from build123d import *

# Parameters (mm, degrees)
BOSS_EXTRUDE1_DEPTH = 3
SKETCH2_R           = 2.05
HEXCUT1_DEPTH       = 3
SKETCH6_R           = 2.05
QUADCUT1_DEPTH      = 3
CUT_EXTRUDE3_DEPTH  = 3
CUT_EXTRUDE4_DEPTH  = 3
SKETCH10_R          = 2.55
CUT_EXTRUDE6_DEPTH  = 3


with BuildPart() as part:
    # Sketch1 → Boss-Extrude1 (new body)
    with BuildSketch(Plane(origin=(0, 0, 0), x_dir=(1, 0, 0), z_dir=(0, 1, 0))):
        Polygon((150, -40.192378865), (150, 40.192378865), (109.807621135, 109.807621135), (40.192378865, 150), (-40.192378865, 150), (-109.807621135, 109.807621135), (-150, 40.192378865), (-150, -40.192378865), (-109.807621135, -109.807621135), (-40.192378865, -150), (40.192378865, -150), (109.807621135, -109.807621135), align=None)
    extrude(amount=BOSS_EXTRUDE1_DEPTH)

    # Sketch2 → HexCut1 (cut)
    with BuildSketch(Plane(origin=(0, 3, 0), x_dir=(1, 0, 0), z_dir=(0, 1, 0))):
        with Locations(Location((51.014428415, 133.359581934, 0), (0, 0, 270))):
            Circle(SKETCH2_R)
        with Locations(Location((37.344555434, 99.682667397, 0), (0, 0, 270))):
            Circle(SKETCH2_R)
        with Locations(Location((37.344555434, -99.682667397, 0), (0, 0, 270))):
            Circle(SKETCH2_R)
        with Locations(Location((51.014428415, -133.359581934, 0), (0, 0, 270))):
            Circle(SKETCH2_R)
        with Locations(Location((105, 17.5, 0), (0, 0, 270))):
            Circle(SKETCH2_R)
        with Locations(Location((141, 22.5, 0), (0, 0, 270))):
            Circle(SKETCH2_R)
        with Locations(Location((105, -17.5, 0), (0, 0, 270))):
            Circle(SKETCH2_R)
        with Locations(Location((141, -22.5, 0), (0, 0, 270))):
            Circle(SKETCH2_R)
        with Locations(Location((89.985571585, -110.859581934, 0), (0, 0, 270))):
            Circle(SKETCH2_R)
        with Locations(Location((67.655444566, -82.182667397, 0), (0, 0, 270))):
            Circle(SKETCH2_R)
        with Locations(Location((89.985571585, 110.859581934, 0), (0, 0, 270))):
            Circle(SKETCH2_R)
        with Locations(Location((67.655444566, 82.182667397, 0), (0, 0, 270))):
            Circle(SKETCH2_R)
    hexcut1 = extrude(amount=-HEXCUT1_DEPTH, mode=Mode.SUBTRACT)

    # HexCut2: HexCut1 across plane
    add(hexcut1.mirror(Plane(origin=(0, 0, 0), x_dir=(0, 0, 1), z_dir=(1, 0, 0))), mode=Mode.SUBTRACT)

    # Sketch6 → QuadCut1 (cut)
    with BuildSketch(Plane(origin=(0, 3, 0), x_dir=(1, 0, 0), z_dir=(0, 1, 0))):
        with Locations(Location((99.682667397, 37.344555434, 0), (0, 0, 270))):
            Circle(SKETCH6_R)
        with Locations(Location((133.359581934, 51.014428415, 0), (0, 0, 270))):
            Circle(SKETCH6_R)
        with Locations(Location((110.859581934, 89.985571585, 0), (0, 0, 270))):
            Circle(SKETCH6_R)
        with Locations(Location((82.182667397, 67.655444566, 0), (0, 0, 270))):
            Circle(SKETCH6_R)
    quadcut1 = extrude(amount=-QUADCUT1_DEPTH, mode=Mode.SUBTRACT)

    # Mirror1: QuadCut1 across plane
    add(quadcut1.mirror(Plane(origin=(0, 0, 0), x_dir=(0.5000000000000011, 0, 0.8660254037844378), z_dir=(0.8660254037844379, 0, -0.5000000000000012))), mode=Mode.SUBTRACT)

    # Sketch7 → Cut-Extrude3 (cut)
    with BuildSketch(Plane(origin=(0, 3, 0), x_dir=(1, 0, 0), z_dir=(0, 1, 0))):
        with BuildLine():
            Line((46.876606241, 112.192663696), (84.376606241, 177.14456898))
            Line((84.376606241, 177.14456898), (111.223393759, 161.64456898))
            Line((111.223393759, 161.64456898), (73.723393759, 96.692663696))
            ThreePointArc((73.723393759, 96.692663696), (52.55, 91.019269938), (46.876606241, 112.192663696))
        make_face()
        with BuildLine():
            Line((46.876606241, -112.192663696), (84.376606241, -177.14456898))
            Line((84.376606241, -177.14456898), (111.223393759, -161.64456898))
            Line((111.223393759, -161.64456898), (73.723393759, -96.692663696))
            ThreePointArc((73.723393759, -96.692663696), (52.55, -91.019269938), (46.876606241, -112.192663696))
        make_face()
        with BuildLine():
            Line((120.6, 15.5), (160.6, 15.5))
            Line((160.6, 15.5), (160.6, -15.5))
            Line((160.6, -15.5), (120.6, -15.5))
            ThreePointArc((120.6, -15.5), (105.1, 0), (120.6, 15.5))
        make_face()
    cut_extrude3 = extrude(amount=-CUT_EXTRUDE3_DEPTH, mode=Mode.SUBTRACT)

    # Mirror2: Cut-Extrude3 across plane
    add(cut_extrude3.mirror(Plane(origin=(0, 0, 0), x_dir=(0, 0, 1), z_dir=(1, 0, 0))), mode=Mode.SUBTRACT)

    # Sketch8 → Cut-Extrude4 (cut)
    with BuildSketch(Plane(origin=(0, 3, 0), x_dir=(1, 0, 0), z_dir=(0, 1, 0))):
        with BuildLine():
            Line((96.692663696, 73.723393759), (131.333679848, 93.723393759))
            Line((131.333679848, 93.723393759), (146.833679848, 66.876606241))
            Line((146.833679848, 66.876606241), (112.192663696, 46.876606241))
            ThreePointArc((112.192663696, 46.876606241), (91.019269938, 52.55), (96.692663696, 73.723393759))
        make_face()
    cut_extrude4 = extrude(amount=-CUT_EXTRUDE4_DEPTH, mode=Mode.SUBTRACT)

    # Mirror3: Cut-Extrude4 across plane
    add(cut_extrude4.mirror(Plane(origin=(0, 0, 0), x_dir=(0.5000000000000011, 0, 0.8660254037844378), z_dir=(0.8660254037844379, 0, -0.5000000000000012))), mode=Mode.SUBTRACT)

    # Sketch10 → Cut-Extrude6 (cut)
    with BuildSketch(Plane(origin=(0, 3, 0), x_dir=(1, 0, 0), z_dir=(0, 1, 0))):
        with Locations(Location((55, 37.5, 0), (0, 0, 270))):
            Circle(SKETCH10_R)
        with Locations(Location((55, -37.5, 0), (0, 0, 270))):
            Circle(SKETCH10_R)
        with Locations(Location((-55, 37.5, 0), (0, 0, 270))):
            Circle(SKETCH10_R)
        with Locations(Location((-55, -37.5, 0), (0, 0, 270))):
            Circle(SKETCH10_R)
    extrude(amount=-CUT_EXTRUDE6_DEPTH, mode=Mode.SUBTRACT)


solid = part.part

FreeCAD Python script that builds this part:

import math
import FreeCAD as App
import Part
import Sketcher
Q = App.Units.Quantity


def add_polygon(sketch, points):
    """Adds a closed chain of lines whose ends are joined by coincident constraints."""
    first, n = sketch.GeometryCount, len(points)
    for a, b in zip(points, points[1:] + points[:1]):
        sketch.addGeometry(Part.LineSegment(App.Vector(*a, 0), App.Vector(*b, 0)), False)
    for i in range(n):
        sketch.addConstraint(Sketcher.Constraint("Coincident", first + i, 2, first + (i + 1) % n, 1))

doc = App.newDocument("Part")
body = doc.addObject("PartDesign::Body", "Body")

# Sketch on XZ plane
sketch1 = doc.addObject("Sketcher::SketchObject", "Sketch")
body.addObject(sketch1)
sketch1.AttachmentSupport = (doc.XZ_Plane, [""])
sketch1.MapMode = "FlatFace"
add_polygon(sketch1, [(150, 40), (150, -40), (110, -110), (40, -150), (-40, -150), (-110, -110), (-150, -40), (-150, 40), (-110, 110), (-40, 150), (40, 150), (110, 110)])  # lines 0-11
sketch1.addConstraint([
    Sketcher.Constraint("Vertical", 0),
    Sketcher.Constraint("Horizontal", 3),
    Sketcher.Constraint("Vertical", 6),
    Sketcher.Constraint("Horizontal", 9),
    Sketcher.Constraint("Symmetric", 0, 2, 6, 2, -1, 1),
    Sketcher.Constraint("Symmetric", 1, 2, 7, 2, -1, 1),
    Sketcher.Constraint("Symmetric", 2, 2, 8, 2, -1, 1),
    Sketcher.Constraint("Symmetric", 4, 2, 10, 2, -1, 1),
    Sketcher.Constraint("Symmetric", 1, 2, 4, 2, -2),
    Sketcher.Constraint("Perpendicular", 1, 4),
    Sketcher.Constraint("Perpendicular", 2, 5),
    Sketcher.Constraint("Perpendicular", 7, 10),
    Sketcher.Constraint("Perpendicular", 8, 11),
    Sketcher.Constraint("Horizontal", 0, 2, 5, 2),
    Sketcher.Constraint("Equal", 9, 0),
    Sketcher.Constraint("Equal", 1, 2),
    Sketcher.Constraint("Angle", 1, Q("-120 deg")),
    Sketcher.Constraint("DistanceX", -1, 1, 0, 2, Q("150 mm")),
    Sketcher.Constraint("DistanceX", 3, 2, 1, 2, Q("150 mm")),
])
pad1 = doc.addObject("PartDesign::Pad", "Pad")
body.addObject(pad1)
pad1.Profile = sketch1
pad1.Length = 3
pad1.Reversed = True

# Sketch on XZ plane
sketch2 = doc.addObject("Sketcher::SketchObject", "Sketch001")
body.addObject(sketch2)
sketch2.AttachmentSupport = (doc.XZ_Plane, [""])
sketch2.MapMode = "FlatFace"
sketch2.AttachmentOffset = App.Placement(App.Vector(0, 0, -3), App.Rotation())
sketch2.addGeometry([
    Part.Circle(App.Vector(51, -133.4, 0), App.Vector(0, 0, 1), 2),  # 0
    Part.Circle(App.Vector(37.3, -99.7, 0), App.Vector(0, 0, 1), 2),  # 1
    Part.Circle(App.Vector(37.3, 99.7, 0), App.Vector(0, 0, 1), 2),  # 2
    Part.Circle(App.Vector(51, 133.4, 0), App.Vector(0, 0, 1), 2),  # 3
    Part.Circle(App.Vector(105, -17.5, 0), App.Vector(0, 0, 1), 2),  # 4
    Part.Circle(App.Vector(141, -22.5, 0), App.Vector(0, 0, 1), 2),  # 5
    Part.Circle(App.Vector(105, 17.5, 0), App.Vector(0, 0, 1), 2),  # 6
    Part.Circle(App.Vector(141, 22.5, 0), App.Vector(0, 0, 1), 2),  # 7
    Part.Circle(App.Vector(90, 110.9, 0), App.Vector(0, 0, 1), 2),  # 8
    Part.Circle(App.Vector(67.7, 82.2, 0), App.Vector(0, 0, 1), 2),  # 9
    Part.Circle(App.Vector(90, -110.9, 0), App.Vector(0, 0, 1), 2),  # 10
    Part.Circle(App.Vector(67.7, -82.2, 0), App.Vector(0, 0, 1), 2),  # 11
], False)
sketch2.addConstraint([
    Sketcher.Constraint("Equal", 0, 1),
    Sketcher.Constraint("Equal", 1, 2),
    Sketcher.Constraint("Equal", 2, 3),
    Sketcher.Constraint("Equal", 3, 4),
    Sketcher.Constraint("Equal", 4, 5),
    Sketcher.Constraint("Equal", 5, 6),
    Sketcher.Constraint("Equal", 6, 7),
    Sketcher.Constraint("Equal", 7, 8),
    Sketcher.Constraint("Equal", 8, 9),
    Sketcher.Constraint("Equal", 9, 10),
    Sketcher.Constraint("Equal", 10, 11),
    Sketcher.Constraint("Symmetric", 1, 3, 2, 3, -1),
    Sketcher.Constraint("Symmetric", 0, 3, 3, 3, -1),
    Sketcher.Constraint("Symmetric", 4, 3, 6, 3, -1),
    Sketcher.Constraint("Symmetric", 5, 3, 7, 3, -1),
    Sketcher.Constraint("Symmetric", 8, 3, 10, 3, -1),
    Sketcher.Constraint("Symmetric", 9, 3, 11, 3, -1),
    Sketcher.Constraint("Diameter", 0, Q("4.1 mm")),
    Sketcher.Constraint("DistanceX", -1, 1, 4, 3, Q("105 mm")),
    Sketcher.Constraint("DistanceX", -1, 1, 5, 3, Q("141 mm")),
    Sketcher.Constraint("DistanceY", 5, 3, 4, 3, Q("5 mm")),
    Sketcher.Constraint("DistanceY", 4, 3, 6, 3, Q("35 mm")),
    Sketcher.Constraint("DistanceY", 8, 3, 3, 3, Q("22.5 mm")),
    Sketcher.Constraint("DistanceY", 9, 3, 2, 3, Q("17.5 mm")),
    Sketcher.Constraint("DistanceX", -1, 1, 0, 3, Q("51.014428 mm")),
    Sketcher.Constraint("DistanceY", 0, 3, -1, 1, Q("133.359582 mm")),
    Sketcher.Constraint("DistanceX", -1, 1, 8, 3, Q("89.985572 mm")),
    Sketcher.Constraint("DistanceY", 0, 3, 2, 3, Q("233.042249 mm")),
    Sketcher.Constraint("DistanceX", 2, 3, 9, 3, Q("30.310889 mm")),
    Sketcher.Constraint("DistanceX", -1, 1, 1, 3, Q("37.344555 mm")),
])
pocket1 = doc.addObject("PartDesign::Pocket", "Pocket")
body.addObject(pocket1)
pocket1.Profile = sketch2
pocket1.Length = 3
pocket1.Reversed = True
doc.recompute()

mirrored = doc.addObject("PartDesign::Mirrored", "Mirrored")
body.addObject(mirrored)
mirrored.Originals = [pocket1]
mirrored.MirrorPlane = (doc.YZ_Plane, [""])
body.Tip = mirrored

# Sketch on XZ plane
sketch3 = doc.addObject("Sketcher::SketchObject", "Sketch002")
body.addObject(sketch3)
sketch3.AttachmentSupport = (doc.XZ_Plane, [""])
sketch3.MapMode = "FlatFace"
sketch3.AttachmentOffset = App.Placement(App.Vector(0, 0, -3), App.Rotation())
sketch3.addGeometry([
    Part.Circle(App.Vector(99.7, -37.3, 0), App.Vector(0, 0, 1), 2),
    Part.Circle(App.Vector(133.4, -51, 0), App.Vector(0, 0, 1), 2),
    Part.Circle(App.Vector(110.9, -90, 0), App.Vector(0, 0, 1), 2),
    Part.Circle(App.Vector(82.2, -67.7, 0), App.Vector(0, 0, 1), 2),
], False)
sketch3.addConstraint([
    Sketcher.Constraint("Equal", 0, 1),
    Sketcher.Constraint("Equal", 1, 2),
    Sketcher.Constraint("Equal", 2, 3),
    Sketcher.Constraint("Diameter", 0, Q("4.1 mm")),
    Sketcher.Constraint("DistanceX", 2, 3, 1, 3, Q("22.5 mm")),
    Sketcher.Constraint("DistanceX", 3, 3, 0, 3, Q("17.5 mm")),
    Sketcher.Constraint("DistanceX", -1, 1, 1, 3, Q("133.359582 mm")),
    Sketcher.Constraint("DistanceY", 1, 3, -1, 1, Q("51.014428 mm")),
    Sketcher.Constraint("DistanceY", 2, 3, -1, 1, Q("89.985572 mm")),
    Sketcher.Constraint("DistanceY", 3, 3, 0, 3, Q("30.310889 mm")),
    Sketcher.Constraint("DistanceX", -1, 1, 0, 3, Q("99.682667 mm")),
    Sketcher.Constraint("DistanceY", 0, 3, -1, 1, Q("37.344555 mm")),
])
pocket2 = doc.addObject("PartDesign::Pocket", "Pocket001")
body.addObject(pocket2)
pocket2.Profile = sketch3
pocket2.Length = 3
pocket2.Reversed = True
doc.recompute()

datumplane = doc.addObject("PartDesign::Plane", "DatumPlane")
body.addObject(datumplane)
datumplane.Placement = App.Placement(App.Vector(0, 0, 0), App.Rotation(App.Vector(0.5, 0, 0.866025404), App.Vector(0, -1, 0), App.Vector(0.866025404, 0, -0.5), "ZXY"))
mirrored2 = doc.addObject("PartDesign::Mirrored", "Mirrored001")
body.addObject(mirrored2)
mirrored2.Originals = [pocket2]
mirrored2.MirrorPlane = (datumplane, [""])
body.Tip = mirrored2

# Sketch on XZ plane
sketch4 = doc.addObject("Sketcher::SketchObject", "Sketch003")
body.addObject(sketch4)
sketch4.AttachmentSupport = (doc.XZ_Plane, [""])
sketch4.MapMode = "FlatFace"
sketch4.AttachmentOffset = App.Placement(App.Vector(0, 0, -3), App.Rotation())
sketch4.addGeometry([
    Part.LineSegment(App.Vector(84, -177, 0), App.Vector(47, -112, 0)),  # 0
    Part.ArcOfCircle(Part.Circle(App.Vector(60, -104, 0), App.Vector(0, 0, 1), 16), math.radians(30), math.radians(210)),  # 1
    Part.LineSegment(App.Vector(74, -97, 0), App.Vector(111, -162, 0)),  # 2
    Part.LineSegment(App.Vector(111, -162, 0), App.Vector(84, -177, 0)),  # 3
    Part.LineSegment(App.Vector(47, 112, 0), App.Vector(84, 177, 0)),  # 4
    Part.LineSegment(App.Vector(84, 177, 0), App.Vector(111, 162, 0)),  # 5
    Part.LineSegment(App.Vector(111, 162, 0), App.Vector(74, 97, 0)),  # 6
    Part.ArcOfCircle(Part.Circle(App.Vector(60, 104, 0), App.Vector(0, 0, 1), 16), math.radians(150), math.radians(330)),  # 7
    Part.LineSegment(App.Vector(161, -16, 0), App.Vector(121, -16, 0)),  # 8
    Part.ArcOfCircle(Part.Circle(App.Vector(121, 0, 0), App.Vector(0, 0, 1), 16), math.radians(90), math.radians(270)),  # 9
    Part.LineSegment(App.Vector(121, 16, 0), App.Vector(161, 16, 0)),  # 10
    Part.LineSegment(App.Vector(161, 16, 0), App.Vector(161, -16, 0)),  # 11
], False)
sketch4.addConstraint([
    Sketcher.Constraint("Tangent", 0, 2, 1, 2),
    Sketcher.Constraint("Tangent", 1, 1, 2, 1),
    Sketcher.Constraint("Coincident", 2, 2, 3, 1),
    Sketcher.Constraint("Coincident", 3, 2, 0, 1),
    Sketcher.Constraint("Coincident", 4, 2, 5, 1),
    Sketcher.Constraint("Coincident", 5, 2, 6, 1),
    Sketcher.Constraint("Tangent", 6, 2, 7, 2),
    Sketcher.Constraint("Tangent", 7, 1, 4, 1),
    Sketcher.Constraint("Tangent", 8, 2, 9, 2),
    Sketcher.Constraint("Tangent", 9, 1, 10, 1),
    Sketcher.Constraint("Coincident", 10, 2, 11, 1),
    Sketcher.Constraint("Coincident", 11, 2, 8, 1),
    Sketcher.Constraint("Horizontal", 8),
    Sketcher.Constraint("Horizontal", 10),
    Sketcher.Constraint("Vertical", 11),
    Sketcher.Constraint("Equal", 1, 7),
    Sketcher.Constraint("Equal", 7, 9),
    Sketcher.Constraint("Symmetric", 1, 3, 7, 3, -1),
    Sketcher.Constraint("Symmetric", 3, 2, 4, 2, -1),
    Sketcher.Constraint("Symmetric", 2, 2, 5, 2, -1),
    Sketcher.Constraint("PointOnObject", 9, 3, -1),
    Sketcher.Constraint("Parallel", 0, 2),
    Sketcher.Constraint("Perpendicular", 2, 3),
    Sketcher.Constraint("Radius", 1, Q("15.5 mm")),
    Sketcher.Constraint("DistanceX", 8, 2, 8, 1, Q("40 mm")),
    Sketcher.Constraint("Angle", 0, Q("120 deg")),
    Sketcher.Constraint("Distance", 0, Q("75 mm")),
    Sketcher.Constraint("DistanceX", -1, 1, 1, 3, Q("60.3 mm")),
    Sketcher.Constraint("DistanceX", -1, 1, 9, 3, Q("120.6 mm")),
    Sketcher.Constraint("DistanceY", 2, 2, -1, 1, Q("161.644569 mm")),
])
pocket3 = doc.addObject("PartDesign::Pocket", "Pocket002")
body.addObject(pocket3)
pocket3.Profile = sketch4
pocket3.Length = 3
pocket3.Reversed = True
doc.recompute()

mirrored3 = doc.addObject("PartDesign::Mirrored", "Mirrored002")
body.addObject(mirrored3)
mirrored3.Originals = [pocket3]
mirrored3.MirrorPlane = (doc.YZ_Plane, [""])
body.Tip = mirrored3

# Sketch on XZ plane
sketch5 = doc.addObject("Sketcher::SketchObject", "Sketch004")
body.addObject(sketch5)
sketch5.AttachmentSupport = (doc.XZ_Plane, [""])
sketch5.MapMode = "FlatFace"
sketch5.AttachmentOffset = App.Placement(App.Vector(0, 0, -3), App.Rotation())
sketch5.addGeometry([
    Part.LineSegment(App.Vector(131, -94, 0), App.Vector(97, -74, 0)),
    Part.ArcOfCircle(Part.Circle(App.Vector(104, -60, 0), App.Vector(0, 0, 1), 16), math.radians(60), math.radians(240)),
    Part.LineSegment(App.Vector(112, -47, 0), App.Vector(147, -67, 0)),
    Part.LineSegment(App.Vector(147, -67, 0), App.Vector(131, -94, 0)),
], False)
sketch5.addConstraint([
    Sketcher.Constraint("Tangent", 0, 2, 1, 2),
    Sketcher.Constraint("Tangent", 1, 1, 2, 1),
    Sketcher.Constraint("Coincident", 2, 2, 3, 1),
    Sketcher.Constraint("Coincident", 3, 2, 0, 1),
    Sketcher.Constraint("Parallel", 0, 2),
    Sketcher.Constraint("Perpendicular", 2, 3),
    Sketcher.Constraint("Radius", 1, Q("15.5 mm")),
    Sketcher.Constraint("Angle", 0, Q("150 deg")),
    Sketcher.Constraint("Distance", 0, Q("40 mm")),
    Sketcher.Constraint("DistanceY", 1, 3, -1, 1, Q("60.3 mm")),
    Sketcher.Constraint("DistanceX", -1, 1, 2, 2, Q("146.83368 mm")),
])
pocket4 = doc.addObject("PartDesign::Pocket", "Pocket003")
body.addObject(pocket4)
pocket4.Profile = sketch5
pocket4.Length = 3
pocket4.Reversed = True
doc.recompute()

datumplane2 = doc.addObject("PartDesign::Plane", "DatumPlane001")
body.addObject(datumplane2)
datumplane2.Placement = App.Placement(App.Vector(0, 0, 0), App.Rotation(App.Vector(0.5, 0, 0.866025404), App.Vector(0, -1, 0), App.Vector(0.866025404, 0, -0.5), "ZXY"))
mirrored4 = doc.addObject("PartDesign::Mirrored", "Mirrored003")
body.addObject(mirrored4)
mirrored4.Originals = [pocket4]
mirrored4.MirrorPlane = (datumplane2, [""])
body.Tip = mirrored4

# Sketch on XZ plane
sketch6 = doc.addObject("Sketcher::SketchObject", "Sketch005")
body.addObject(sketch6)
sketch6.AttachmentSupport = (doc.XZ_Plane, [""])
sketch6.MapMode = "FlatFace"
sketch6.AttachmentOffset = App.Placement(App.Vector(0, 0, -3), App.Rotation())
sketch6.addGeometry([
    Part.Circle(App.Vector(55, -37.5, 0), App.Vector(0, 0, 1), 2.5),
    Part.Circle(App.Vector(55, 37.5, 0), App.Vector(0, 0, 1), 2.5),
    Part.Circle(App.Vector(-55, -37.5, 0), App.Vector(0, 0, 1), 2.5),
    Part.Circle(App.Vector(-55, 37.5, 0), App.Vector(0, 0, 1), 2.5),
], False)
sketch6.addConstraint([
    Sketcher.Constraint("Equal", 0, 1),
    Sketcher.Constraint("Equal", 1, 2),
    Sketcher.Constraint("Equal", 2, 3),
    Sketcher.Constraint("Symmetric", 1, 3, 2, 3, -1, 1),
    Sketcher.Constraint("Symmetric", 0, 3, 3, 3, -1, 1),
    Sketcher.Constraint("Symmetric", 0, 3, 2, 3, -2),
    Sketcher.Constraint("Diameter", 0, Q("5.1 mm")),
    Sketcher.Constraint("DistanceX", -1, 1, 0, 3, Q("55 mm")),
    Sketcher.Constraint("DistanceY", 0, 3, 1, 3, Q("75 mm")),
])
pocket5 = doc.addObject("PartDesign::Pocket", "Pocket004")
body.addObject(pocket5)
pocket5.Profile = sketch6
pocket5.Length = 3
pocket5.Reversed = True

doc.recompute()
